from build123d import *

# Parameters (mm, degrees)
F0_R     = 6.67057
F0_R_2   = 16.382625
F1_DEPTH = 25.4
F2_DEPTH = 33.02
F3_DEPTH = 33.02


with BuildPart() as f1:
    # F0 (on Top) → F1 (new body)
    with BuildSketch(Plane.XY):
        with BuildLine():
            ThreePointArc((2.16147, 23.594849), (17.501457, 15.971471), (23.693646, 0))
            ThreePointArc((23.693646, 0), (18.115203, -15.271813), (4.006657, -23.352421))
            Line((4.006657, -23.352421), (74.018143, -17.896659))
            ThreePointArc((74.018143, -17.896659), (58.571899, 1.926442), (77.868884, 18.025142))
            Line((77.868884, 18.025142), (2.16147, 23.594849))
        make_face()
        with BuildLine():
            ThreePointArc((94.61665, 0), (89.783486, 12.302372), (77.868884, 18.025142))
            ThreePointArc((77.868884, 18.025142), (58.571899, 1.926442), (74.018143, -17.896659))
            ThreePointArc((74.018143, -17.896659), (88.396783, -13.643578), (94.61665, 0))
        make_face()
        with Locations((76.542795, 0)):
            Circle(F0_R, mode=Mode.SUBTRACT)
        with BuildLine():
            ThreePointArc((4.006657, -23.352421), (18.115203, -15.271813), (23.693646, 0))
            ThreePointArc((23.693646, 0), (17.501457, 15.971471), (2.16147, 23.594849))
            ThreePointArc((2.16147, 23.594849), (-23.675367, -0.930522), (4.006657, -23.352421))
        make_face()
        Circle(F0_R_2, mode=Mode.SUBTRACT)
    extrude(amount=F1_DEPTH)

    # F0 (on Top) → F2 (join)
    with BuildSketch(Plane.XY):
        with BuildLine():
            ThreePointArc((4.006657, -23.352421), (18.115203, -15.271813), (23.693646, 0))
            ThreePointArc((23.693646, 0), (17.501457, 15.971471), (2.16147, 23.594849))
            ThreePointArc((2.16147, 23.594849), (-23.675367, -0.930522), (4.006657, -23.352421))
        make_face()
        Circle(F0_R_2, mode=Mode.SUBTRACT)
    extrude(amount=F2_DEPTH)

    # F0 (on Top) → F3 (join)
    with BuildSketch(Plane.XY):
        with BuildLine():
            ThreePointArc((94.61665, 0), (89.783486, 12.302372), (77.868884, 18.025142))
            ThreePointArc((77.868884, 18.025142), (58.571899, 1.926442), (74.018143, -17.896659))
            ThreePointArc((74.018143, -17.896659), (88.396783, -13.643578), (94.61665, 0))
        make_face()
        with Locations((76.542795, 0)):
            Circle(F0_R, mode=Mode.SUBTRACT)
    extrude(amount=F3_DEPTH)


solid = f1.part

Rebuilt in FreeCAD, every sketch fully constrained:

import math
import FreeCAD as App
import Part
import Sketcher
from FreeCAD import Vector
Q = App.Units.Quantity

doc = App.newDocument("Part")
body = doc.addObject("PartDesign::Body", "Body")

sketch1 = body.newObject("Sketcher::SketchObject", "Sketch")
sketch1.AttachmentSupport = (doc.getObject("XY_Plane"), [""])
sketch1.MapMode = "FlatFace"
sketch1.addGeometry(Part.LineSegment(Vector(78, 18, 0), Vector(2, 24, 0)), False)
sketch1.addGeometry(Part.ArcOfCircle(Part.Circle(Vector(0, 0, 0), Vector(0, 0, 1), 24), math.radians(85), math.radians(280)), False)
sketch1.addGeometry(Part.LineSegment(Vector(4, -23, 0), Vector(74, -18, 0)), False)
sketch1.addGeometry(Part.ArcOfCircle(Part.Circle(Vector(77, 0, 0), Vector(0, 0, 1), 18), math.radians(-98), math.radians(0)), False)
sketch1.addGeometry(Part.ArcOfCircle(Part.Circle(Vector(77, 0, 0), Vector(0, 0, 1), 18), math.radians(0), math.radians(86)), False)
sketch1.addGeometry(Part.Circle(Vector(0, 0, 0), Vector(0, 0, 1), 16), False)
sketch1.addGeometry(Part.Circle(Vector(77, 0, 0), Vector(0, 0, 1), 7), False)
sketch1.addConstraint(Sketcher.Constraint("Coincident", 0, 2, 1, 1))
sketch1.addConstraint(Sketcher.Constraint("Coincident", 1, 2, 2, 1))
sketch1.addConstraint(Sketcher.Constraint("Coincident", 2, 2, 3, 1))
sketch1.addConstraint(Sketcher.Constraint("Tangent", 3, 2, 4, 1))
sketch1.addConstraint(Sketcher.Constraint("Tangent", 4, 2, 0, 1))
sketch1.addConstraint(Sketcher.Constraint("Coincident", 1, 3, -1, 1))
sketch1.addConstraint(Sketcher.Constraint("Coincident", 5, 3, -1, 1))
sketch1.addConstraint(Sketcher.Constraint("Coincident", 6, 3, 3, 3))
sketch1.addConstraint(Sketcher.Constraint("Equal", 3, 4))
sketch1.addConstraint(Sketcher.Constraint("PointOnObject", 3, 3, -1))
sketch1.addConstraint(Sketcher.Constraint("PointOnObject", 3, 2, -1))
sketch1.addConstraint(Sketcher.Constraint("Diameter", 5, Q("32.76525 mm")))
sketch1.addConstraint(Sketcher.Constraint("Diameter", 6, Q("13.34114 mm")))
sketch1.addConstraint(Sketcher.Constraint("DistanceX", -1, 1, 2, 2, Q("2.9141001 in")))
sketch1.addConstraint(Sketcher.Constraint("Radius", 1, Q("23.693646 mm")))
sketch1.addConstraint(Sketcher.Constraint("Radius", 3, Q("18.073856 mm")))
sketch1.addConstraint(Sketcher.Constraint("DistanceY", 2, 2, 4, 2, Q("35.921801 mm")))
sketch1.addConstraint(Sketcher.Constraint("Distance", 2, Q("70.223739 mm")))
sketch1.addConstraint(Sketcher.Constraint("DistanceX", -1, 1, 0, 2, Q("2.16147 mm")))
pad1 = body.newObject("PartDesign::Pad", "Pad")
pad1.Profile = sketch1
pad1.Length = Q("1 in")

sketch2 = body.newObject("Sketcher::SketchObject", "Sketch001")
sketch2.AttachmentSupport = (doc.getObject("XY_Plane"), [""])
sketch2.MapMode = "FlatFace"
sketch2.addGeometry(Part.ArcOfCircle(Part.Circle(Vector(0, 0, 0), Vector(0, 0, 1), 24), math.radians(-80), math.radians(0)), False)
sketch2.addGeometry(Part.ArcOfCircle(Part.Circle(Vector(0, 0, 0), Vector(0, 0, 1), 24), math.radians(0), math.radians(85)), False)
sketch2.addGeometry(Part.ArcOfCircle(Part.Circle(Vector(0, 0, 0), Vector(0, 0, 1), 24), math.radians(85), math.radians(280)), False)
sketch2.addGeometry(Part.Circle(Vector(0, 0, 0), Vector(0, 0, 1), 16), False)
sketch2.addConstraint(Sketcher.Constraint("Tangent", 0, 2, 1, 1))
sketch2.addConstraint(Sketcher.Constraint("Tangent", 1, 2, 2, 1))
sketch2.addConstraint(Sketcher.Constraint("Tangent", 2, 2, 0, 1))
sketch2.addConstraint(Sketcher.Constraint("Coincident", 0, 3, -1, 1))
sketch2.addConstraint(Sketcher.Constraint("Coincident", 3, 3, -1, 1))
sketch2.addConstraint(Sketcher.Constraint("PointOnObject", 0, 2, -1))
sketch2.addConstraint(Sketcher.Constraint("Diameter", 3, Q("32.76525 mm")))
sketch2.addConstraint(Sketcher.Constraint("Radius", 0, Q("23.693647 mm")))
sketch2.addConstraint(Sketcher.Constraint("DistanceX", -1, 1, 1, 2, Q("2.16147 mm")))
sketch2.addConstraint(Sketcher.Constraint("DistanceY", 2, 2, -1, 1, Q("23.352421 mm")))
pad2 = body.newObject("PartDesign::Pad", "Pad001")
pad2.Profile = sketch2
pad2.Length = Q("1.3 in")

sketch3 = body.newObject("Sketcher::SketchObject", "Sketch002")
sketch3.AttachmentSupport = (doc.getObject("XY_Plane"), [""])
sketch3.MapMode = "FlatFace"
sketch3.addGeometry(Part.ArcOfCircle(Part.Circle(Vector(77, 0, 0), Vector(0, 0, 1), 18), math.radians(0), math.radians(86)), False)
sketch3.addGeometry(Part.ArcOfCircle(Part.Circle(Vector(77, 0, 0), Vector(0, 0, 1), 18), math.radians(86), math.radians(262)), False)
sketch3.addGeometry(Part.ArcOfCircle(Part.Circle(Vector(77, 0, 0), Vector(0, 0, 1), 18), math.radians(-98), math.radians(0)), False)
sketch3.addGeometry(Part.Circle(Vector(77, 0, 0), Vector(0, 0, 1), 7), False)
sketch3.addConstraint(Sketcher.Constraint("Tangent", 0, 2, 1, 1))
sketch3.addConstraint(Sketcher.Constraint("Tangent", 1, 2, 2, 1))
sketch3.addConstraint(Sketcher.Constraint("Tangent", 2, 2, 0, 1))
sketch3.addConstraint(Sketcher.Constraint("Coincident", 3, 3, 0, 3))
sketch3.addConstraint(Sketcher.Constraint("PointOnObject", 0, 3, -1))
sketch3.addConstraint(Sketcher.Constraint("PointOnObject", 2, 2, -1))
sketch3.addConstraint(Sketcher.Constraint("Diameter", 3, Q("13.34114 mm")))
sketch3.addConstraint(Sketcher.Constraint("DistanceX", -1, 1, 1, 2, Q("2.9141001 in")))
sketch3.addConstraint(Sketcher.Constraint("Radius", 0, Q("18.073855 mm")))
sketch3.addConstraint(Sketcher.Constraint("DistanceY", 1, 2, 0, 2, Q("35.921801 mm")))
sketch3.addConstraint(Sketcher.Constraint("DistanceY", -1, 1, 0, 2, Q("18.025142 mm")))
pad3 = body.newObject("PartDesign::Pad", "Pad002")
pad3.Profile = sketch3
pad3.Length = Q("1.3 in")

doc.recompute()
